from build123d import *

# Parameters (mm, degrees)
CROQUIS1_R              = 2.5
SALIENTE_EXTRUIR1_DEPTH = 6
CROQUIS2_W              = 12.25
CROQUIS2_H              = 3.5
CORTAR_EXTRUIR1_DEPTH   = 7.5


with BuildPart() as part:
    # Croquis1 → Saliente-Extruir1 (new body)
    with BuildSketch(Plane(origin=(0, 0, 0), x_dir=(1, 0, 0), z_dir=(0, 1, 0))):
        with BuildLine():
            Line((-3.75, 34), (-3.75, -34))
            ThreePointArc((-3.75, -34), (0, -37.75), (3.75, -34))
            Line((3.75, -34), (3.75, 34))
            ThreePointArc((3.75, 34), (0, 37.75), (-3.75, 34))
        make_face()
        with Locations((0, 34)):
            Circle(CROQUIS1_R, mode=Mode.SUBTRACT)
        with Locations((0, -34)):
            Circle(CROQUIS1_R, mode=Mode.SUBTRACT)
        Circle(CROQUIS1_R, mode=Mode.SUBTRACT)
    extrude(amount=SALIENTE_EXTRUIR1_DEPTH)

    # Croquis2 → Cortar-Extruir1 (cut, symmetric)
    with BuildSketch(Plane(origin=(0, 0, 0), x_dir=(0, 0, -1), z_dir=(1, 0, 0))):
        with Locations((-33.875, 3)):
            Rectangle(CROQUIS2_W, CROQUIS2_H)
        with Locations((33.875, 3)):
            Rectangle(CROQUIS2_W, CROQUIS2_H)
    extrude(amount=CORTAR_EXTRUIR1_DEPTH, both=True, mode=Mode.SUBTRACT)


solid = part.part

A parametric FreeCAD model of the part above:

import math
import FreeCAD as App
import Part
import Sketcher
from FreeCAD import Vector
Q = App.Units.Quantity


def add_polygon(sketch, points):
    """Adds a closed chain of lines whose ends are joined by coincident constraints."""
    first, n = sketch.GeometryCount, len(points)
    for a, b in zip(points, points[1:] + points[:1]):
        sketch.addGeometry(Part.LineSegment(App.Vector(*a, 0), App.Vector(*b, 0)), False)
    for i in range(n):
        sketch.addConstraint(Sketcher.Constraint("Coincident", first + i, 2, first + (i + 1) % n, 1))

doc = App.newDocument("Part")
body = doc.addObject("PartDesign::Body", "Body")

sketch1 = doc.addObject("Sketcher::SketchObject", "Sketch")
body.addObject(sketch1)
sketch1.AttachmentSupport = (doc.XZ_Plane, [""])
sketch1.MapMode = "FlatFace"
sketch1.addGeometry([
    Part.LineSegment(Vector(-3.75, -34, 0), Vector(-3.75, 34, 0)),
    Part.ArcOfCircle(Part.Circle(Vector(0, 34, 0), Vector(0, 0, 1), 3.75), math.radians(0), math.radians(180)),
    Part.LineSegment(Vector(3.75, 34, 0), Vector(3.75, -34, 0)),
    Part.ArcOfCircle(Part.Circle(Vector(0, -34, 0), Vector(0, 0, 1), 3.75), math.radians(180), math.radians(360)),
    Part.Circle(Vector(0, 34, 0), Vector(0, 0, 1), 2.5),
    Part.Circle(Vector(0, 0, 0), Vector(0, 0, 1), 2.5),
    Part.Circle(Vector(0, -34, 0), Vector(0, 0, 1), 2.5),
], False)
sketch1.addConstraint([
    Sketcher.Constraint("Tangent", 0, 2, 1, 2),
    Sketcher.Constraint("Tangent", 1, 1, 2, 1),
    Sketcher.Constraint("Tangent", 2, 2, 3, 2),
    Sketcher.Constraint("Tangent", 3, 1, 0, 1),
    Sketcher.Constraint("Vertical", 0),
    Sketcher.Constraint("Vertical", 2),
    Sketcher.Constraint("Coincident", 5, 3, -1, 1),
    Sketcher.Constraint("Coincident", 4, 3, 1, 3),
    Sketcher.Constraint("Coincident", 6, 3, 3, 3),
    Sketcher.Constraint("Equal", 4, 5),
    Sketcher.Constraint("Equal", 5, 6),
    Sketcher.Constraint("Symmetric", 1, 3, 3, 3, -1, 1),
    Sketcher.Constraint("Diameter", 4, Q("5 mm")),
    Sketcher.Constraint("DistanceY", 0, 1, 0, 2, Q("68 mm")),
    Sketcher.Constraint("Radius", 1, Q("3.75 mm")),
])
pad1 = doc.addObject("PartDesign::Pad", "Pad")
body.addObject(pad1)
pad1.Profile = sketch1
pad1.Length = 6
pad1.Reversed = True

sketch2 = doc.addObject("Sketcher::SketchObject", "Sketch001")
body.addObject(sketch2)
sketch2.AttachmentSupport = (doc.YZ_Plane, [""])
sketch2.MapMode = "FlatFace"
add_polygon(sketch2, [(4.75, 40), (1.25, 40), (1.25, 27.75), (4.75, 27.75)])
add_polygon(sketch2, [(4.75, -27.75), (1.25, -27.75), (1.25, -40), (4.75, -40)])
sketch2.addConstraint([
    Sketcher.Constraint("Horizontal", 0),
    Sketcher.Constraint("Vertical", 1),
    Sketcher.Constraint("Horizontal", 2),
    Sketcher.Constraint("Vertical", 3),
    Sketcher.Constraint("Horizontal", 4),
    Sketcher.Constraint("Vertical", 5),
    Sketcher.Constraint("Horizontal", 6),
    Sketcher.Constraint("Vertical", 7),
    Sketcher.Constraint("Symmetric", 1, 2, 4, 2, -1),
    Sketcher.Constraint("Symmetric", 3, 2, 6, 2, -1),
    Sketcher.Constraint("DistanceX", 0, 2, 0, 1, Q("3.5 mm")),
    Sketcher.Constraint("DistanceY", -1, 1, 0, 2, Q("40 mm")),
    Sketcher.Constraint("DistanceY", 1, 2, 1, 1, Q("12.25 mm")),
    Sketcher.Constraint("DistanceX", -1, 1, 0, 2, Q("1.25 mm")),
])
pocket1 = doc.addObject("PartDesign::Pocket", "Pocket")
body.addObject(pocket1)
pocket1.Profile = sketch2
pocket1.Length = 15
pocket1.Midplane = True

doc.recompute()
